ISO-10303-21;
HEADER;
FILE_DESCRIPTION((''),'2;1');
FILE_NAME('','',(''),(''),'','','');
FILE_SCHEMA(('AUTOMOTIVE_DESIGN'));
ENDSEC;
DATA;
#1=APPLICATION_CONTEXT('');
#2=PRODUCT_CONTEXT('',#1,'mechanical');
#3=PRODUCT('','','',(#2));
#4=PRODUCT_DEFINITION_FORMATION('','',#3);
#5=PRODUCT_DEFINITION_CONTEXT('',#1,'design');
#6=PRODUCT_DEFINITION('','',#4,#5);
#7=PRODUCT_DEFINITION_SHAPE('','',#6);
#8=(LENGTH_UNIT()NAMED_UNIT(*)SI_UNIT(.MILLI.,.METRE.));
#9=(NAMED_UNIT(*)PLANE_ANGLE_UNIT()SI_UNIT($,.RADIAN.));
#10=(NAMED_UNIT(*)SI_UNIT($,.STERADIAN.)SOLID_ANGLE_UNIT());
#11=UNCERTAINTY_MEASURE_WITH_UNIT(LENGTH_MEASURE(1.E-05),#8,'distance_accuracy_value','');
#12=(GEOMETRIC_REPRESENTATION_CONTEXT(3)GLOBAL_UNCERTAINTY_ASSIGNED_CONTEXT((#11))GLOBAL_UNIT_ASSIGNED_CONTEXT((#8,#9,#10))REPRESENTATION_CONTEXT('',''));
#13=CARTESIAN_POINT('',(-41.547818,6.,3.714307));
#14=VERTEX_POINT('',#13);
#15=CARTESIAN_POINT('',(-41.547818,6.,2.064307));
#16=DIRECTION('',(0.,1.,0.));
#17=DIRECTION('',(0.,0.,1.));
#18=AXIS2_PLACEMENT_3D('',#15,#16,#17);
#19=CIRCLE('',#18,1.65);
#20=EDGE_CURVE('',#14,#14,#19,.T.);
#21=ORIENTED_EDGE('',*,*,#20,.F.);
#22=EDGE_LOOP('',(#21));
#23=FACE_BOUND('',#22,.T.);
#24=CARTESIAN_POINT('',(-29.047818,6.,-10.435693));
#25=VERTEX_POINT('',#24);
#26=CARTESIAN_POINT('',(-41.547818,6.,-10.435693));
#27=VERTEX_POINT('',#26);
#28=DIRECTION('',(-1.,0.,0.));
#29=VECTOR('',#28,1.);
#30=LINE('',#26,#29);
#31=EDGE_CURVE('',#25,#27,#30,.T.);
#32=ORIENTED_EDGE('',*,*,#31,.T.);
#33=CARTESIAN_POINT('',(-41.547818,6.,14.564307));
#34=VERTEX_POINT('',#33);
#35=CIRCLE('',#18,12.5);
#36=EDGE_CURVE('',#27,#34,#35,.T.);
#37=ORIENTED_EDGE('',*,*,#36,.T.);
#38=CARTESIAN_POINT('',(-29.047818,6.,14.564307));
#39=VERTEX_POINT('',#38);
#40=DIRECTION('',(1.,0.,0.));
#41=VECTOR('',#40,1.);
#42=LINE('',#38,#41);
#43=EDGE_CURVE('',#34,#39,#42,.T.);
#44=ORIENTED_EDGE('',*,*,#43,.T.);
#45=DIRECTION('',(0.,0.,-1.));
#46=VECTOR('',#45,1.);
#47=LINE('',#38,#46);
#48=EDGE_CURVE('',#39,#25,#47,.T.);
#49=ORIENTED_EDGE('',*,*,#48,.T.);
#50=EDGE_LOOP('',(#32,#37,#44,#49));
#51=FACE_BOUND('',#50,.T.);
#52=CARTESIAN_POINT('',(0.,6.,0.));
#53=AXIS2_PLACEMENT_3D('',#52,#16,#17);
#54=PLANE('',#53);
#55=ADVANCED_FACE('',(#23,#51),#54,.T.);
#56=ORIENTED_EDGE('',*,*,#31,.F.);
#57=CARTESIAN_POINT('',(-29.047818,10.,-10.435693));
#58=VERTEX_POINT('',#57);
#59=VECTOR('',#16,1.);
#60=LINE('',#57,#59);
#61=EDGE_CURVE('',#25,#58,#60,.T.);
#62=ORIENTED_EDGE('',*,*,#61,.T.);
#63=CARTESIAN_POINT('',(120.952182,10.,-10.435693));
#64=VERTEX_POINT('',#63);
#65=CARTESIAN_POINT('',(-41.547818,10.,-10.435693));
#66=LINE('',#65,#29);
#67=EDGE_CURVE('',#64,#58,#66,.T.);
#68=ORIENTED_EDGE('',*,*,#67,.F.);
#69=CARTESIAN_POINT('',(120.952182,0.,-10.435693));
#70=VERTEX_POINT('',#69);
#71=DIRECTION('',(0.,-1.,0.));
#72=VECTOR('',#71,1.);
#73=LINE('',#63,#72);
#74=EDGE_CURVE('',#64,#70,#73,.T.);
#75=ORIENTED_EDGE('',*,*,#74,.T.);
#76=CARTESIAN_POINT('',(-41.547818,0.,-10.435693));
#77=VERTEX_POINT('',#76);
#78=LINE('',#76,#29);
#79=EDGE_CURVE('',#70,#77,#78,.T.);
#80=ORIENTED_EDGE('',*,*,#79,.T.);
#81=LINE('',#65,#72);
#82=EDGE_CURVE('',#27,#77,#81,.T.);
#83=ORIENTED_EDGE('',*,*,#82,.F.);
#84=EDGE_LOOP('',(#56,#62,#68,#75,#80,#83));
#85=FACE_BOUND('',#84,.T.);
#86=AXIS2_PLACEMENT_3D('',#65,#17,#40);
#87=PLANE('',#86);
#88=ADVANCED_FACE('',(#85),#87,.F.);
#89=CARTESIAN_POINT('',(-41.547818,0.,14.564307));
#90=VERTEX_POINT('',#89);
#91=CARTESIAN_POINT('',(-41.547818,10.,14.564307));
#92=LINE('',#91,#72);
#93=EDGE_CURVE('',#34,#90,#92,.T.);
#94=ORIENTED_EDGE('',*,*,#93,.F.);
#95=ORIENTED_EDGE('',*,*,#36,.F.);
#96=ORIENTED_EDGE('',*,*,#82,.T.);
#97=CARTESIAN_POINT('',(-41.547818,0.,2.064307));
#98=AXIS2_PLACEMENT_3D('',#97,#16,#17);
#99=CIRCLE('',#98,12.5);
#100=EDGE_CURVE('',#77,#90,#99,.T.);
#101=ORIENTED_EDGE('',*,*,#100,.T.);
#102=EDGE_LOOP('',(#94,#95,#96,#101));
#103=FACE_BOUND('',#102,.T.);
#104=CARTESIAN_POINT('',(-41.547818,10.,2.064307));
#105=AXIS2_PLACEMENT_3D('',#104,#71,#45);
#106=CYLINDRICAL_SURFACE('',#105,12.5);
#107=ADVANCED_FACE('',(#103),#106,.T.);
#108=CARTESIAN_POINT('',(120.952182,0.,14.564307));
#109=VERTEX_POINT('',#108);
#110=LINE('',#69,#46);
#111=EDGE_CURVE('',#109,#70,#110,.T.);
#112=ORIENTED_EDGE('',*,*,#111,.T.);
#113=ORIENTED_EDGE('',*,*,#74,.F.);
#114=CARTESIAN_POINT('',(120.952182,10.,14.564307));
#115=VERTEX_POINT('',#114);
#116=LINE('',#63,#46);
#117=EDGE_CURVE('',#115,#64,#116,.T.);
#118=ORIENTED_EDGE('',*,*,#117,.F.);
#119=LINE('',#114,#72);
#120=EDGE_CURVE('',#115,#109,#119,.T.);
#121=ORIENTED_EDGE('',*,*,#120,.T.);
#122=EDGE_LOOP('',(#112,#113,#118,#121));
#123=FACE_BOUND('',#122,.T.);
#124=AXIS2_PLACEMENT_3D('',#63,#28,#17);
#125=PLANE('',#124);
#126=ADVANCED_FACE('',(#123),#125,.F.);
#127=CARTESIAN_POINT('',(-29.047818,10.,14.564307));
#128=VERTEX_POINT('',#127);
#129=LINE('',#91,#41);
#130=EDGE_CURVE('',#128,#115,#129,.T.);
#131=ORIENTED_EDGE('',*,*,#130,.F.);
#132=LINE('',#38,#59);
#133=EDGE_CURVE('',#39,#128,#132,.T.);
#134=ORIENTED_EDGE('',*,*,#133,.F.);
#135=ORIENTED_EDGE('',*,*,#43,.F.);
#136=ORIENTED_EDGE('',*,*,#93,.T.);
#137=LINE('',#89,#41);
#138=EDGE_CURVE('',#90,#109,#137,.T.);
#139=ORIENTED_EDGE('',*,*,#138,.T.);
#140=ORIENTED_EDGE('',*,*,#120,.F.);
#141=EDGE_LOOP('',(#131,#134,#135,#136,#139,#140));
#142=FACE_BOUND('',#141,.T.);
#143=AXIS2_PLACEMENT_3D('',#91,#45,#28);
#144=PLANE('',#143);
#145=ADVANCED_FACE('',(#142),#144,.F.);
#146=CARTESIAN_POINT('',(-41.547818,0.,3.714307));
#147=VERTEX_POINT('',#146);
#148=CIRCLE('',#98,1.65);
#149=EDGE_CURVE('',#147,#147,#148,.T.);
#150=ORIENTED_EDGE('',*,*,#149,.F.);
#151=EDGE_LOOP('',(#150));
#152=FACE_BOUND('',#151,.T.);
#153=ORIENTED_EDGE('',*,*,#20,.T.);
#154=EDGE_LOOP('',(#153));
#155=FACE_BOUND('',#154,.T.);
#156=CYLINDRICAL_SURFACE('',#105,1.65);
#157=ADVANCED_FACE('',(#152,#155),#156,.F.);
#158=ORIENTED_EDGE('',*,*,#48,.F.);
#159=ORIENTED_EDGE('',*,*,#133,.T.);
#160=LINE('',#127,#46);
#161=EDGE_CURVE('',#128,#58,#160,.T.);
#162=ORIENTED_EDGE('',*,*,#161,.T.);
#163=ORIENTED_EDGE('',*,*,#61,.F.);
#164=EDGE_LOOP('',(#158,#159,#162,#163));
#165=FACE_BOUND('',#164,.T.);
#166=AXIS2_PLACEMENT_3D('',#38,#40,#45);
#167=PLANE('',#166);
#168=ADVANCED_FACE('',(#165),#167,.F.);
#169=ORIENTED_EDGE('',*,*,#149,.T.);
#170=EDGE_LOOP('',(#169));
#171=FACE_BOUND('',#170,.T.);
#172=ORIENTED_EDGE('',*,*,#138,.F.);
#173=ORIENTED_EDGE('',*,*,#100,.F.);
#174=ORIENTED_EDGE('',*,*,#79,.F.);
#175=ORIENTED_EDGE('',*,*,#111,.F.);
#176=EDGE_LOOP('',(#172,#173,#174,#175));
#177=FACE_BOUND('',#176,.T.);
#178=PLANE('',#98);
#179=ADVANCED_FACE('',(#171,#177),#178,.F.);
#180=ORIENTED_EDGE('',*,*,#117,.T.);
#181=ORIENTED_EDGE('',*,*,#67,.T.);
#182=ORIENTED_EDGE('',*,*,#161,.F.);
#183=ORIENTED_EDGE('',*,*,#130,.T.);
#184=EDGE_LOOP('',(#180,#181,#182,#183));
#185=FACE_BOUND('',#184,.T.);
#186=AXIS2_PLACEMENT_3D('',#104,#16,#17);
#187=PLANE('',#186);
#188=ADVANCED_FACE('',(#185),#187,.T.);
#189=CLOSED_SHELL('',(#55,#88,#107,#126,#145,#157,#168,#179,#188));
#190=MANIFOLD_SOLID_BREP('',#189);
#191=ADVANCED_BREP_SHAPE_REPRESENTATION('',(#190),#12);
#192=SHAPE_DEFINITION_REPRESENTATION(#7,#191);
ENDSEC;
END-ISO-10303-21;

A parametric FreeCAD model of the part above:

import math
import FreeCAD as App
import Part
import Sketcher
Q = App.Units.Quantity


def add_polygon(sketch, points):
    """Adds a closed chain of lines whose ends are joined by coincident constraints."""
    first, n = sketch.GeometryCount, len(points)
    for a, b in zip(points, points[1:] + points[:1]):
        sketch.addGeometry(Part.LineSegment(App.Vector(*a, 0), App.Vector(*b, 0)), False)
    for i in range(n):
        sketch.addConstraint(Sketcher.Constraint("Coincident", first + i, 2, first + (i + 1) % n, 1))

doc = App.newDocument("Part")
body = doc.addObject("PartDesign::Body", "Body")

sketch1 = doc.addObject("Sketcher::SketchObject", "Sketch")
body.addObject(sketch1)
sketch1.AttachmentSupport = (doc.XZ_Plane, [""])
sketch1.MapMode = "FlatFace"
sketch1.addGeometry([
    Part.LineSegment(App.Vector(121, -10.4, 0), App.Vector(-41.5, -10.4, 0)),
    Part.ArcOfCircle(Part.Circle(App.Vector(-41.5, 2.1, 0), App.Vector(0, 0, 1), 12.5), math.radians(90), math.radians(270)),
    Part.LineSegment(App.Vector(-41.5, 14.6, 0), App.Vector(121, 14.6, 0)),
    Part.LineSegment(App.Vector(121, 14.6, 0), App.Vector(121, -10.4, 0)),
    Part.Circle(App.Vector(-41.5, 2.1, 0), App.Vector(0, 0, 1), 1.6),
], False)
sketch1.addConstraint([
    Sketcher.Constraint("Tangent", 0, 2, 1, 2),
    Sketcher.Constraint("Tangent", 1, 1, 2, 1),
    Sketcher.Constraint("Coincident", 2, 2, 3, 1),
    Sketcher.Constraint("Coincident", 3, 2, 0, 1),
    Sketcher.Constraint("Horizontal", 0),
    Sketcher.Constraint("Horizontal", 2),
    Sketcher.Constraint("Vertical", 3),
    Sketcher.Constraint("Coincident", 4, 3, 1, 3),
    Sketcher.Constraint("Diameter", 4, Q("3.3 mm")),
    Sketcher.Constraint("Radius", 1, Q("12.5 mm")),
    Sketcher.Constraint("DistanceX", 0, 2, 0, 1, Q("162.5 mm")),
    Sketcher.Constraint("DistanceX", 1, 3, -1, 1, Q("41.547818 mm")),
    Sketcher.Constraint("DistanceY", -1, 1, 1, 3, Q("2.064307 mm")),
])
pad1 = doc.addObject("PartDesign::Pad", "Pad")
body.addObject(pad1)
pad1.Profile = sketch1
pad1.Length = 10
pad1.Reversed = True

sketch2 = doc.addObject("Sketcher::SketchObject", "Sketch001")
body.addObject(sketch2)
sketch2.AttachmentSupport = (doc.XZ_Plane, [""])
sketch2.MapMode = "FlatFace"
sketch2.AttachmentOffset = App.Placement(App.Vector(0, 0, -10), App.Rotation())
add_polygon(sketch2, [(-59, -16), (-59, 15), (-29, 15), (-29, -16)])
sketch2.addConstraint([
    Sketcher.Constraint("Vertical", 0),
    Sketcher.Constraint("Horizontal", 1),
    Sketcher.Constraint("Vertical", 2),
    Sketcher.Constraint("Horizontal", 3),
    Sketcher.Constraint("DistanceX", 1, 1, 1, 2, Q("29.506731 mm")),
    Sketcher.Constraint("DistanceY", 0, 1, 0, 2, Q("30.126834 mm")),
    Sketcher.Constraint("DistanceX", 0, 2, -1, 1, Q("58.554548 mm")),
    Sketcher.Constraint("DistanceY", -1, 1, 0, 2, Q("14.564307 mm")),
])
pocket1 = doc.addObject("PartDesign::Pocket", "Pocket")
body.addObject(pocket1)
pocket1.Profile = sketch2
pocket1.Length = 4
pocket1.Reversed = True

doc.recompute()
